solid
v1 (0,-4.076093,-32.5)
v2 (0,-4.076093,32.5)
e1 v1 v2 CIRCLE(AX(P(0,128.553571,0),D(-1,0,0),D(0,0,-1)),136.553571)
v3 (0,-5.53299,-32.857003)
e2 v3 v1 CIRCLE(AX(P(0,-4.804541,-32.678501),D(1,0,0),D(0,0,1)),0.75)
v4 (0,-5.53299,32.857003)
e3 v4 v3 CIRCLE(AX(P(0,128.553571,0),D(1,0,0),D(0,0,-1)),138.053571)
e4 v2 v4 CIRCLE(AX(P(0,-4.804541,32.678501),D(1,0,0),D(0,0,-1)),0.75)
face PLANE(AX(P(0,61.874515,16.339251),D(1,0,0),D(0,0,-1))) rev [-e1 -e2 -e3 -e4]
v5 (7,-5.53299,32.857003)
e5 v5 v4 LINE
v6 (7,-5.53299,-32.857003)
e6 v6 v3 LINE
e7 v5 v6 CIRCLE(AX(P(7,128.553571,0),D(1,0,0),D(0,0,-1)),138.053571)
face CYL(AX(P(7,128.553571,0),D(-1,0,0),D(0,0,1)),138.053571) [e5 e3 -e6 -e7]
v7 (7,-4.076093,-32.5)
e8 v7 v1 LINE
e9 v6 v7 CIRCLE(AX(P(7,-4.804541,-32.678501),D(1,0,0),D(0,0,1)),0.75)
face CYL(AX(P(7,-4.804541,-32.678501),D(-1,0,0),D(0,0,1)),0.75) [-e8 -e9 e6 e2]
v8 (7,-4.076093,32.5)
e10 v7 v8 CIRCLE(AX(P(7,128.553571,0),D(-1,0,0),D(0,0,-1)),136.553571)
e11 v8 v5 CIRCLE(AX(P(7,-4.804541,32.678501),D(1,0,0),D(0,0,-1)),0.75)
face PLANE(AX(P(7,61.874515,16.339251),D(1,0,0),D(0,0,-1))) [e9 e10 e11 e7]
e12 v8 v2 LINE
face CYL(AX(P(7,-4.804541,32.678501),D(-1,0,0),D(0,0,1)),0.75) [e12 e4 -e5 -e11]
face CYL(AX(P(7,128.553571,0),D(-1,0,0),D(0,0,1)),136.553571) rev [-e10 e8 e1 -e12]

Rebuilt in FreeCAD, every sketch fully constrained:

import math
import FreeCAD as App
import Part
import Sketcher

V = App.Vector

doc = App.newDocument("Part")
params = doc.addObject("Spreadsheet::Sheet", "Params")
for row, (alias, value) in enumerate([
    ("sketch1_radius", "0.75 mm"),
    ("pad1_length", "7 mm"),
], start=1):
    params.set(f"A{row}", alias)
    params.set(f"B{row}", "=" + value)
    params.setAlias(f"B{row}", alias)

body = doc.addObject("PartDesign::Body", "Body")

# Sketch on YZ plane
sketch1 = body.newObject("Sketcher::SketchObject", "Sketch")
sketch1.AttachmentSupport = (doc.getObject("YZ_Plane"), [""])
sketch1.MapMode = "FlatFace"
sketch1.addGeometry([
    Part.ArcOfCircle(Part.Circle(V(128.553571, 0, 0), V(0, 0, 1), 136.553571), math.radians(166.231363), math.radians(193.768637)),
    Part.ArcOfCircle(Part.Circle(V(-4.804541, 32.678501, 0), V(0, 0, 1), 0.75), math.radians(-13.768637), math.radians(166.231363)),
    Part.ArcOfCircle(Part.Circle(V(128.553571, 0, 0), V(0, 0, 1), 138.053571), math.radians(166.231363), math.radians(193.768637)),
    Part.ArcOfCircle(Part.Circle(V(-4.804541, -32.678501, 0), V(0, 0, 1), 0.75), math.radians(-166.231363), math.radians(13.768637)),
], False)
sketch1.addConstraint([
    Sketcher.Constraint("Tangent", 0, 1, 1, 1),
    Sketcher.Constraint("Tangent", 1, 2, 2, 1),
    Sketcher.Constraint("Tangent", 2, 2, 3, 1),
    Sketcher.Constraint("Tangent", 3, 2, 0, 2),
    Sketcher.Constraint("Coincident", 2, 3, 0, 3),
    Sketcher.Constraint("Symmetric", 1, 3, 3, 3, -1),
    Sketcher.Constraint("Radius", 1, 0.75),
    Sketcher.Constraint("DistanceY", 3, 2, 0, 1, 65.0),
    Sketcher.Constraint("Radius", 0, 136.553571),
    Sketcher.Constraint("DistanceX", -1, 1, 0, 3, 128.553571),
])
sketch1.setExpression("Constraints[6]", "Params.sketch1_radius")
pad1 = body.newObject("PartDesign::Pad", "Pad")
pad1.Profile = sketch1
pad1.setExpression("Length", "Params.pad1_length")

doc.recompute()
